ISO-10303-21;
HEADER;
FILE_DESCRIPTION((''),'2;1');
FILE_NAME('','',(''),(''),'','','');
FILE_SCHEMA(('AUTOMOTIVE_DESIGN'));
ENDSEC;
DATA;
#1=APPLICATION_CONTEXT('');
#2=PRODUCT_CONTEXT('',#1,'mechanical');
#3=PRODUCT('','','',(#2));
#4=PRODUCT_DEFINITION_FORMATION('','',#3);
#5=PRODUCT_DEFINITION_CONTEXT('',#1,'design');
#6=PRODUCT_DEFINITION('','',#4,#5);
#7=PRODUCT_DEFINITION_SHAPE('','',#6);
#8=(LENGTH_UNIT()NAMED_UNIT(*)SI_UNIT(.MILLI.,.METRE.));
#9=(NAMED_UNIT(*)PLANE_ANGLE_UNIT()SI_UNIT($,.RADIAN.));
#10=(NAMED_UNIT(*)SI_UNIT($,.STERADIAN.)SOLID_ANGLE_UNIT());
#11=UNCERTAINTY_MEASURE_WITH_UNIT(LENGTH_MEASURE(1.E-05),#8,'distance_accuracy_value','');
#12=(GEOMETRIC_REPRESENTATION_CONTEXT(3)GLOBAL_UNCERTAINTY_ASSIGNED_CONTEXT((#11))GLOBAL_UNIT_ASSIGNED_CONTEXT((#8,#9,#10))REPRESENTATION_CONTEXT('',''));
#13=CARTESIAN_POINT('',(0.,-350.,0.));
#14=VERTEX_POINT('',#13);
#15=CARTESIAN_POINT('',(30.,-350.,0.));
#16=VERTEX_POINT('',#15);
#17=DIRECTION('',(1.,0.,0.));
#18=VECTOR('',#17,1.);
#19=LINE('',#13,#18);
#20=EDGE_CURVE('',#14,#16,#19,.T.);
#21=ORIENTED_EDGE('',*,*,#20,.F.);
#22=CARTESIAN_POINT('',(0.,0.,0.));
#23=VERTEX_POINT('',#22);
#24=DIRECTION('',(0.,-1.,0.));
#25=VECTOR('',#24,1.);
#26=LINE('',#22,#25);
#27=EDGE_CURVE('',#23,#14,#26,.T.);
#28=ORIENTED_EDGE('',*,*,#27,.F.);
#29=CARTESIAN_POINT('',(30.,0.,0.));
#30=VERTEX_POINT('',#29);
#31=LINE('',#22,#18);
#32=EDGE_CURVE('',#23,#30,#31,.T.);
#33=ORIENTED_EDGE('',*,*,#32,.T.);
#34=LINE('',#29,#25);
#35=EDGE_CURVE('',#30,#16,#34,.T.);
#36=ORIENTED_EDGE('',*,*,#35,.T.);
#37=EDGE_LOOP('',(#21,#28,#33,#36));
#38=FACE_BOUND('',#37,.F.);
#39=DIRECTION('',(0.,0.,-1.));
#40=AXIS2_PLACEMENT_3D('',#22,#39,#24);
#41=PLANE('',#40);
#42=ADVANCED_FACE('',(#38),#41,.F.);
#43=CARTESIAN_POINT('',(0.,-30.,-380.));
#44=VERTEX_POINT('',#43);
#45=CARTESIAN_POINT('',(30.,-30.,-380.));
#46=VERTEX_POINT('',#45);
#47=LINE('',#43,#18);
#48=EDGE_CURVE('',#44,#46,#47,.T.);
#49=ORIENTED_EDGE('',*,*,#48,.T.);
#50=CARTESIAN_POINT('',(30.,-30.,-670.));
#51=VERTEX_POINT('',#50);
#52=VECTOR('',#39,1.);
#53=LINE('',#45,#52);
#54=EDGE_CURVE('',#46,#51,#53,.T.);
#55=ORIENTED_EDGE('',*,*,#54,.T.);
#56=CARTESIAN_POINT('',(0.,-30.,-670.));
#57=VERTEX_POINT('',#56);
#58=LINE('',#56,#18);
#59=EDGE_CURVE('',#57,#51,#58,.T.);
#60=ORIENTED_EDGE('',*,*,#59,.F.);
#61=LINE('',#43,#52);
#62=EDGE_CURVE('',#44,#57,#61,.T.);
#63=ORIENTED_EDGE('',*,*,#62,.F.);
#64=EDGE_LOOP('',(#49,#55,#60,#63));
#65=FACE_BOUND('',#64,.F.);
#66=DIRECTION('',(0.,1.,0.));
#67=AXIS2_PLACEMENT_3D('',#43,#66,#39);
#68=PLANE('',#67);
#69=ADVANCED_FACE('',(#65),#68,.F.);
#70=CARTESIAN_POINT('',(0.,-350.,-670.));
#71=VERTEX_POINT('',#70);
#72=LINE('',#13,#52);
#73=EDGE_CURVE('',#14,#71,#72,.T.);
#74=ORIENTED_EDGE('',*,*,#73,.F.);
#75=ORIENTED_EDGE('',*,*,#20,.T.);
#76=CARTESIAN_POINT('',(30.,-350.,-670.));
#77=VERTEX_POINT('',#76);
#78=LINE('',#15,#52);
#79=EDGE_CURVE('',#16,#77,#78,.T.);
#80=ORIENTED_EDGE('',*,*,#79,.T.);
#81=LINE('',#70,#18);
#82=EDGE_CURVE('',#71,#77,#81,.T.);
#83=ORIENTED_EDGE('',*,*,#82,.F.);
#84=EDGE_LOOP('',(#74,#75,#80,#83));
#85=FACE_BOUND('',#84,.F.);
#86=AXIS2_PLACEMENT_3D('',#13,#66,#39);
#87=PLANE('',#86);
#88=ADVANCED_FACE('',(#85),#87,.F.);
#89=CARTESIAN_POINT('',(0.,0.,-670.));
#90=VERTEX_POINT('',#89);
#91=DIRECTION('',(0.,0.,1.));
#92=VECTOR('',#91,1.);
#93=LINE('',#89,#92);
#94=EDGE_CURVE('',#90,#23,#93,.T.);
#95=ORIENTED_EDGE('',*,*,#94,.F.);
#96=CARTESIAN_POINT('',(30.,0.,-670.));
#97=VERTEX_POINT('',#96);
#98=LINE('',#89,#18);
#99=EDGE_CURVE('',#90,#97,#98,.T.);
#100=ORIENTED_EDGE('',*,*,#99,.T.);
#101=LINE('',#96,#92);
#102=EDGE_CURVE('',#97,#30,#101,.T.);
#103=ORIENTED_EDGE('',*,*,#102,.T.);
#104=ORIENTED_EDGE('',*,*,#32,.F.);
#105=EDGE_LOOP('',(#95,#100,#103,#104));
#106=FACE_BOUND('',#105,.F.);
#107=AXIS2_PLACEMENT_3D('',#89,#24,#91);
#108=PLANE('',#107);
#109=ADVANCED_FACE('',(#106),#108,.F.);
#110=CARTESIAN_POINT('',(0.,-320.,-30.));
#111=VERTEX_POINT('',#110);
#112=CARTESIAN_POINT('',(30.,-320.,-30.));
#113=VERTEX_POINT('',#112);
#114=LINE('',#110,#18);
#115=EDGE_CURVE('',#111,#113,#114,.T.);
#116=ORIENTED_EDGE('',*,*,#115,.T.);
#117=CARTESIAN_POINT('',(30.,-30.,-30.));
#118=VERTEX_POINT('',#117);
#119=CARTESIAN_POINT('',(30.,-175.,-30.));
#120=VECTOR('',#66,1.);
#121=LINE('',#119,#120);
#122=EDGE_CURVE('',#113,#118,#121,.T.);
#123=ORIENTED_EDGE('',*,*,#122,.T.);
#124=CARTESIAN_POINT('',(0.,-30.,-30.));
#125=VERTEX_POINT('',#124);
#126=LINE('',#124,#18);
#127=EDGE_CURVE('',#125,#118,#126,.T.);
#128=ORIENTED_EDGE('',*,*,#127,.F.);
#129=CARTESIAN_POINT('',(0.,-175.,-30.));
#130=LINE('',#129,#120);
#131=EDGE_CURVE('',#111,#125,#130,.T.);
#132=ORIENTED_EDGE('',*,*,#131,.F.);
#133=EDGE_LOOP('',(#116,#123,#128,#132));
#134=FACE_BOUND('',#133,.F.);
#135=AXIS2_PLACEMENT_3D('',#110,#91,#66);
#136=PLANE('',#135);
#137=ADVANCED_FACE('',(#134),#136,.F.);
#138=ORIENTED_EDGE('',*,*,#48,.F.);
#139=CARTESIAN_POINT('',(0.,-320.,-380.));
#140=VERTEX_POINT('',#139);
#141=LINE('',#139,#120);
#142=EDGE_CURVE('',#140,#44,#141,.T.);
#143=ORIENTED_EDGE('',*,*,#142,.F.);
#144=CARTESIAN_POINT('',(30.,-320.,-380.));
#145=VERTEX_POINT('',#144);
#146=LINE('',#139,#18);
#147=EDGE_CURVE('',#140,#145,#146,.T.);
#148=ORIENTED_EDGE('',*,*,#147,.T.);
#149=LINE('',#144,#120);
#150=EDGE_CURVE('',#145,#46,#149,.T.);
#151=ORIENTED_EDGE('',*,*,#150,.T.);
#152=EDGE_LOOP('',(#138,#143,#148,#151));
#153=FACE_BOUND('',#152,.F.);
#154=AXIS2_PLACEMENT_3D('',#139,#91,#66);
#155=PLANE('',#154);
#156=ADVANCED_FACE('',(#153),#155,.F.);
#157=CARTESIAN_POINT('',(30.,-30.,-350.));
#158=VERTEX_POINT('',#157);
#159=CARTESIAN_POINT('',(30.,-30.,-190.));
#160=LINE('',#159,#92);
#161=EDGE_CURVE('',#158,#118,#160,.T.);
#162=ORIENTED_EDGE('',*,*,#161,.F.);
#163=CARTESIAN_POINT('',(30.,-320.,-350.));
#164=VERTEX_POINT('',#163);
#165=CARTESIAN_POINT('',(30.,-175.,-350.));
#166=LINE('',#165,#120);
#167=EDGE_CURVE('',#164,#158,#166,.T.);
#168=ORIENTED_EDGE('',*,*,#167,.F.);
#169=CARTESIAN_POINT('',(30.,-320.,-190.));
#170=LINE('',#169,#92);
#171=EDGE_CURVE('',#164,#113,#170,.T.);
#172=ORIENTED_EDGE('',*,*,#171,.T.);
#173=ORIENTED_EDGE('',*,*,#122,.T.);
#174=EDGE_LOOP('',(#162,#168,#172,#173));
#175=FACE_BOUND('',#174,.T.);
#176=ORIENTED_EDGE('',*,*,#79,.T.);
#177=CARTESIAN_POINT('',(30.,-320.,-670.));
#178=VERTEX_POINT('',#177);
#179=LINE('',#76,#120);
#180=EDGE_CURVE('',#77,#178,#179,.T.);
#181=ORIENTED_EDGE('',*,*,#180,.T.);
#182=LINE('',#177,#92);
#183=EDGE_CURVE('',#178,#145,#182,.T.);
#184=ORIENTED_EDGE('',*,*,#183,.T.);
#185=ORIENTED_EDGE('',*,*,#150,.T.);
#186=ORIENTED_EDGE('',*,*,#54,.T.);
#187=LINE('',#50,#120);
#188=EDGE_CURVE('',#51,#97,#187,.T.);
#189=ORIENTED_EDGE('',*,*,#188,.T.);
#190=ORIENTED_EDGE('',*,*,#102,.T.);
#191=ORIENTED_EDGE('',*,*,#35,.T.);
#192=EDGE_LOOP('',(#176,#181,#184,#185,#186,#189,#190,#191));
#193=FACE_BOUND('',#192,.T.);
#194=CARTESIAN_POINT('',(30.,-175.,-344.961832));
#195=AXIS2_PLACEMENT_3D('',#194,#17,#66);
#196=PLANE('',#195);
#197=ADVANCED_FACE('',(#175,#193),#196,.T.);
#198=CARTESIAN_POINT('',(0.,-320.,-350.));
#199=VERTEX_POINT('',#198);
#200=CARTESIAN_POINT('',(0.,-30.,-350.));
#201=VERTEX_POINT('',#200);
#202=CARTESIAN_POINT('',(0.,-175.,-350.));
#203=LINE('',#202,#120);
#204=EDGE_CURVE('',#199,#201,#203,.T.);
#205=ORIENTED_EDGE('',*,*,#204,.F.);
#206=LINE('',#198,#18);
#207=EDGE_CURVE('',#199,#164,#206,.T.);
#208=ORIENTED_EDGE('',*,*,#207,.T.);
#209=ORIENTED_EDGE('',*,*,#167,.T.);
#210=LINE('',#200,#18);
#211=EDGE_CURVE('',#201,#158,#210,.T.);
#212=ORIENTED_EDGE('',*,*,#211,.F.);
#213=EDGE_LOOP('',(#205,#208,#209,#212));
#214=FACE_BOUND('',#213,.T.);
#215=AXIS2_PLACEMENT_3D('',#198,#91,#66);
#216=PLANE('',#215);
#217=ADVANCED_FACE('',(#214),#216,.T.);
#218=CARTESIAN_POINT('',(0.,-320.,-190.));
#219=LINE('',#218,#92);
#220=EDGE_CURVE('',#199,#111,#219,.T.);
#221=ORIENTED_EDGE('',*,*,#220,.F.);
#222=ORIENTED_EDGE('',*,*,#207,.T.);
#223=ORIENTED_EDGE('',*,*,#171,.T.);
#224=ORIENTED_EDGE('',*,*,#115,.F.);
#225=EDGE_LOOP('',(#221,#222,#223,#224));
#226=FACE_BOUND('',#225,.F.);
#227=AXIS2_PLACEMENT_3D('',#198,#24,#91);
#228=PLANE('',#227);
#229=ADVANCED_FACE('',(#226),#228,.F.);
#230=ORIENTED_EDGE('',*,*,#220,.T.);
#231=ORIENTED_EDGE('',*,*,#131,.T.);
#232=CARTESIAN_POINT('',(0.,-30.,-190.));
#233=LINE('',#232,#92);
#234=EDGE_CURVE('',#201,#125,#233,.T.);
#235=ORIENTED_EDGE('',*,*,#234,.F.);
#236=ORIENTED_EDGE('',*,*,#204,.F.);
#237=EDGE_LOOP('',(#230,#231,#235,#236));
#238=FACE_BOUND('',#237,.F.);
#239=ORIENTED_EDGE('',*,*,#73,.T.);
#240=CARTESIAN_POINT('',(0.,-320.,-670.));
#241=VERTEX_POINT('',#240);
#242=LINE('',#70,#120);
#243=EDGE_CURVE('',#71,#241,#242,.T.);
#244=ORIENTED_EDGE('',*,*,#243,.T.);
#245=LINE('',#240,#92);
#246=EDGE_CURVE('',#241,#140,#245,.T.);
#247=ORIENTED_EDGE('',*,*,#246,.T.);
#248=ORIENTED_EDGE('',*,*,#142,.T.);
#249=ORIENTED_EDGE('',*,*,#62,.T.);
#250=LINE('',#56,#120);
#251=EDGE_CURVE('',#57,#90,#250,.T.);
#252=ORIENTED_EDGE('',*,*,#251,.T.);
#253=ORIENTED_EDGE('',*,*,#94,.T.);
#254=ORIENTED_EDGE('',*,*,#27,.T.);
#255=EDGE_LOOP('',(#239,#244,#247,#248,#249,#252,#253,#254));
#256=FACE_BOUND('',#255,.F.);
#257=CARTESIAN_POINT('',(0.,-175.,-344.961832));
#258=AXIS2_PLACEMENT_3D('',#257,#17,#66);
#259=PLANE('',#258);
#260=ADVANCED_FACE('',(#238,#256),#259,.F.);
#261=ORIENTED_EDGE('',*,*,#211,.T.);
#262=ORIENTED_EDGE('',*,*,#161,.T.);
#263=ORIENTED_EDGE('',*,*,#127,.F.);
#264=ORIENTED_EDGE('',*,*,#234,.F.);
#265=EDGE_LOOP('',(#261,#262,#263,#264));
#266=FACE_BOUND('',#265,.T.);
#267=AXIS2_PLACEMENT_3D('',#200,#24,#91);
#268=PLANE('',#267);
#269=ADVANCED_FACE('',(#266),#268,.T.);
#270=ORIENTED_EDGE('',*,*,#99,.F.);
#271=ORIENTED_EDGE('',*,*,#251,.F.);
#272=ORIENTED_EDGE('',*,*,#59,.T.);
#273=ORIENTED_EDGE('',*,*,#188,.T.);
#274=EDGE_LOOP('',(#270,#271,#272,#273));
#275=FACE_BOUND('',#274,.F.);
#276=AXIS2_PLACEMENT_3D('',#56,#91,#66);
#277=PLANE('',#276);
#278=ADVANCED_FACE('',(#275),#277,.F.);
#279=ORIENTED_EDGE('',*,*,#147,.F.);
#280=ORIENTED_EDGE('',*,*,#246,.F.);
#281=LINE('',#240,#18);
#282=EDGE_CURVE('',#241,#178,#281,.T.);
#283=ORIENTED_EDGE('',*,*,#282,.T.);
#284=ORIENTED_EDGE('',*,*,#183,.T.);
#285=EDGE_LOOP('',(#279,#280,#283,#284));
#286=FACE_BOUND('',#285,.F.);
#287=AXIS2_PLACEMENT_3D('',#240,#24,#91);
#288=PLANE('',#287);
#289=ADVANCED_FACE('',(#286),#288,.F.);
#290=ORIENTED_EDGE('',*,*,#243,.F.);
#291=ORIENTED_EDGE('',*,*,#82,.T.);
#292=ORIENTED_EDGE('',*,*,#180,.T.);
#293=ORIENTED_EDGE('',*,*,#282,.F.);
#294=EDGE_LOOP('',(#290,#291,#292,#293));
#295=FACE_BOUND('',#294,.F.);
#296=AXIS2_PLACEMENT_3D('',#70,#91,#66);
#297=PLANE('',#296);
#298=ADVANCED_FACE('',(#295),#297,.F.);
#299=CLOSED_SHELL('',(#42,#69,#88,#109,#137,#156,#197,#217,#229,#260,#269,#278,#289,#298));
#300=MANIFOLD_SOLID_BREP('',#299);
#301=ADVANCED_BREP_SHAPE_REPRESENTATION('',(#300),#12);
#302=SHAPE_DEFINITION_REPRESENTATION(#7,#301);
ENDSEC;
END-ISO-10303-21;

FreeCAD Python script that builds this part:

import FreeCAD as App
import Part
import Sketcher

V = App.Vector


def add_polygon(sketch, points):
    """Adds a closed chain of lines whose ends are joined by coincident constraints."""
    first, n = sketch.GeometryCount, len(points)
    for a, b in zip(points, points[1:] + points[:1]):
        sketch.addGeometry(Part.LineSegment(App.Vector(*a, 0), App.Vector(*b, 0)), False)
    for i in range(n):
        sketch.addConstraint(Sketcher.Constraint("Coincident", first + i, 2, first + (i + 1) % n, 1))

doc = App.newDocument("Part")
body = doc.addObject("PartDesign::Body", "Body")

# Sketch on YZ plane
sketch1 = doc.addObject("Sketcher::SketchObject", "Sketch")
body.addObject(sketch1)
sketch1.AttachmentSupport = (doc.YZ_Plane, [""])
sketch1.MapMode = "FlatFace"
add_polygon(sketch1, [(0, -670), (0, 0), (-350, 0), (-350, -670), (-320, -670), (-320, -380), (-30, -380), (-30, -670)])  # lines 0-7
add_polygon(sketch1, [(-30, -350), (-320, -350), (-320, -30), (-30, -30)])  # lines 8-11
sketch1.addConstraint([
    Sketcher.Constraint("Vertical", 0),
    Sketcher.Constraint("Horizontal", 1),
    Sketcher.Constraint("Vertical", 2),
    Sketcher.Constraint("Horizontal", 3),
    Sketcher.Constraint("Vertical", 4),
    Sketcher.Constraint("Horizontal", 5),
    Sketcher.Constraint("Vertical", 6),
    Sketcher.Constraint("Horizontal", 7),
    Sketcher.Constraint("Horizontal", 8),
    Sketcher.Constraint("Vertical", 9),
    Sketcher.Constraint("Horizontal", 10),
    Sketcher.Constraint("Vertical", 11),
    Sketcher.Constraint("Coincident", 0, 2, -1, 1),
    Sketcher.Constraint("Horizontal", 3, 2, 6, 2),
    Sketcher.Constraint("Vertical", 4, 2, 8, 2),
    Sketcher.Constraint("Vertical", 6, 2, 10, 2),
    Sketcher.Constraint("Equal", 3, 7),
    Sketcher.Constraint("Equal", 10, 4),
    Sketcher.Constraint("DistanceX", 1, 2, 1, 1, 350.0),
    Sketcher.Constraint("DistanceX", 3, 1, 3, 2, 30.0),
    Sketcher.Constraint("DistanceY", 0, 1, 0, 2, 670.0),
    Sketcher.Constraint("DistanceY", 9, 1, 9, 2, 320.0),
    Sketcher.Constraint("DistanceY", 8, 2, -1, 1, 350.0),
])
pad1 = doc.addObject("PartDesign::Pad", "Pad")
body.addObject(pad1)
pad1.Profile = sketch1
pad1.Length = 30

doc.recompute()
